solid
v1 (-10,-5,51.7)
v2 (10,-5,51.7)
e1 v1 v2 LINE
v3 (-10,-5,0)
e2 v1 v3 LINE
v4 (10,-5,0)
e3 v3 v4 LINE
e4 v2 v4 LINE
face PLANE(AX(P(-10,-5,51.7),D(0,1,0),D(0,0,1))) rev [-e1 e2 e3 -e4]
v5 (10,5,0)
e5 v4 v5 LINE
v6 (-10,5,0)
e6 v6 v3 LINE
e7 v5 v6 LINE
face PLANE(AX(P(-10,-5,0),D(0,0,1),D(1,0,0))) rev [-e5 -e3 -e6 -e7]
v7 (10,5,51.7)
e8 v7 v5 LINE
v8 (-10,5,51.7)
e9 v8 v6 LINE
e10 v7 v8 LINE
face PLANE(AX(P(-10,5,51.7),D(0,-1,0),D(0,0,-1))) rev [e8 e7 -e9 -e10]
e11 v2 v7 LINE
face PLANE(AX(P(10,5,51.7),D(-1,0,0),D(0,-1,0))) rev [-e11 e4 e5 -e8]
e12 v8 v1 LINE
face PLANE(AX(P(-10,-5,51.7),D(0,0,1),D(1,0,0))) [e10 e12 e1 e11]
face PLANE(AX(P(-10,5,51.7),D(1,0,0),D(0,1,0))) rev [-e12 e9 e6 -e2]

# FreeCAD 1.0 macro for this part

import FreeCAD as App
import Part
import Sketcher
from FreeCAD import Vector
Q = App.Units.Quantity


def add_polygon(sketch, points):
    """Adds a closed chain of lines whose ends are joined by coincident constraints."""
    first, n = sketch.GeometryCount, len(points)
    for a, b in zip(points, points[1:] + points[:1]):
        sketch.addGeometry(Part.LineSegment(App.Vector(*a, 0), App.Vector(*b, 0)), False)
    for i in range(n):
        sketch.addConstraint(Sketcher.Constraint("Coincident", first + i, 2, first + (i + 1) % n, 1))

doc = App.newDocument("Part")
body = doc.addObject("PartDesign::Body", "Body")

# Sketch on XY plane
sketch1 = doc.addObject("Sketcher::SketchObject", "Sketch")
body.addObject(sketch1)
sketch1.AttachmentSupport = (doc.XY_Plane, [""])
sketch1.MapMode = "FlatFace"
add_polygon(sketch1, [(-10, 5), (-10, -5), (10, -5), (10, 5)])  # lines 0-3
sketch1.addConstraint([
    Sketcher.Constraint("Vertical", 0),
    Sketcher.Constraint("Horizontal", 1),
    Sketcher.Constraint("Vertical", 2),
    Sketcher.Constraint("Horizontal", 3),
    Sketcher.Constraint("Symmetric", 0, 2, 2, 2, -1, 1),
    Sketcher.Constraint("DistanceX", 1, 1, 1, 2, Q("20 mm")),
    Sketcher.Constraint("DistanceY", 0, 2, 0, 1, Q("10 mm")),
])
pad1 = doc.addObject("PartDesign::Pad", "Pad")
body.addObject(pad1)
pad1.Profile = sketch1
pad1.Length = 51.7

doc.recompute()
